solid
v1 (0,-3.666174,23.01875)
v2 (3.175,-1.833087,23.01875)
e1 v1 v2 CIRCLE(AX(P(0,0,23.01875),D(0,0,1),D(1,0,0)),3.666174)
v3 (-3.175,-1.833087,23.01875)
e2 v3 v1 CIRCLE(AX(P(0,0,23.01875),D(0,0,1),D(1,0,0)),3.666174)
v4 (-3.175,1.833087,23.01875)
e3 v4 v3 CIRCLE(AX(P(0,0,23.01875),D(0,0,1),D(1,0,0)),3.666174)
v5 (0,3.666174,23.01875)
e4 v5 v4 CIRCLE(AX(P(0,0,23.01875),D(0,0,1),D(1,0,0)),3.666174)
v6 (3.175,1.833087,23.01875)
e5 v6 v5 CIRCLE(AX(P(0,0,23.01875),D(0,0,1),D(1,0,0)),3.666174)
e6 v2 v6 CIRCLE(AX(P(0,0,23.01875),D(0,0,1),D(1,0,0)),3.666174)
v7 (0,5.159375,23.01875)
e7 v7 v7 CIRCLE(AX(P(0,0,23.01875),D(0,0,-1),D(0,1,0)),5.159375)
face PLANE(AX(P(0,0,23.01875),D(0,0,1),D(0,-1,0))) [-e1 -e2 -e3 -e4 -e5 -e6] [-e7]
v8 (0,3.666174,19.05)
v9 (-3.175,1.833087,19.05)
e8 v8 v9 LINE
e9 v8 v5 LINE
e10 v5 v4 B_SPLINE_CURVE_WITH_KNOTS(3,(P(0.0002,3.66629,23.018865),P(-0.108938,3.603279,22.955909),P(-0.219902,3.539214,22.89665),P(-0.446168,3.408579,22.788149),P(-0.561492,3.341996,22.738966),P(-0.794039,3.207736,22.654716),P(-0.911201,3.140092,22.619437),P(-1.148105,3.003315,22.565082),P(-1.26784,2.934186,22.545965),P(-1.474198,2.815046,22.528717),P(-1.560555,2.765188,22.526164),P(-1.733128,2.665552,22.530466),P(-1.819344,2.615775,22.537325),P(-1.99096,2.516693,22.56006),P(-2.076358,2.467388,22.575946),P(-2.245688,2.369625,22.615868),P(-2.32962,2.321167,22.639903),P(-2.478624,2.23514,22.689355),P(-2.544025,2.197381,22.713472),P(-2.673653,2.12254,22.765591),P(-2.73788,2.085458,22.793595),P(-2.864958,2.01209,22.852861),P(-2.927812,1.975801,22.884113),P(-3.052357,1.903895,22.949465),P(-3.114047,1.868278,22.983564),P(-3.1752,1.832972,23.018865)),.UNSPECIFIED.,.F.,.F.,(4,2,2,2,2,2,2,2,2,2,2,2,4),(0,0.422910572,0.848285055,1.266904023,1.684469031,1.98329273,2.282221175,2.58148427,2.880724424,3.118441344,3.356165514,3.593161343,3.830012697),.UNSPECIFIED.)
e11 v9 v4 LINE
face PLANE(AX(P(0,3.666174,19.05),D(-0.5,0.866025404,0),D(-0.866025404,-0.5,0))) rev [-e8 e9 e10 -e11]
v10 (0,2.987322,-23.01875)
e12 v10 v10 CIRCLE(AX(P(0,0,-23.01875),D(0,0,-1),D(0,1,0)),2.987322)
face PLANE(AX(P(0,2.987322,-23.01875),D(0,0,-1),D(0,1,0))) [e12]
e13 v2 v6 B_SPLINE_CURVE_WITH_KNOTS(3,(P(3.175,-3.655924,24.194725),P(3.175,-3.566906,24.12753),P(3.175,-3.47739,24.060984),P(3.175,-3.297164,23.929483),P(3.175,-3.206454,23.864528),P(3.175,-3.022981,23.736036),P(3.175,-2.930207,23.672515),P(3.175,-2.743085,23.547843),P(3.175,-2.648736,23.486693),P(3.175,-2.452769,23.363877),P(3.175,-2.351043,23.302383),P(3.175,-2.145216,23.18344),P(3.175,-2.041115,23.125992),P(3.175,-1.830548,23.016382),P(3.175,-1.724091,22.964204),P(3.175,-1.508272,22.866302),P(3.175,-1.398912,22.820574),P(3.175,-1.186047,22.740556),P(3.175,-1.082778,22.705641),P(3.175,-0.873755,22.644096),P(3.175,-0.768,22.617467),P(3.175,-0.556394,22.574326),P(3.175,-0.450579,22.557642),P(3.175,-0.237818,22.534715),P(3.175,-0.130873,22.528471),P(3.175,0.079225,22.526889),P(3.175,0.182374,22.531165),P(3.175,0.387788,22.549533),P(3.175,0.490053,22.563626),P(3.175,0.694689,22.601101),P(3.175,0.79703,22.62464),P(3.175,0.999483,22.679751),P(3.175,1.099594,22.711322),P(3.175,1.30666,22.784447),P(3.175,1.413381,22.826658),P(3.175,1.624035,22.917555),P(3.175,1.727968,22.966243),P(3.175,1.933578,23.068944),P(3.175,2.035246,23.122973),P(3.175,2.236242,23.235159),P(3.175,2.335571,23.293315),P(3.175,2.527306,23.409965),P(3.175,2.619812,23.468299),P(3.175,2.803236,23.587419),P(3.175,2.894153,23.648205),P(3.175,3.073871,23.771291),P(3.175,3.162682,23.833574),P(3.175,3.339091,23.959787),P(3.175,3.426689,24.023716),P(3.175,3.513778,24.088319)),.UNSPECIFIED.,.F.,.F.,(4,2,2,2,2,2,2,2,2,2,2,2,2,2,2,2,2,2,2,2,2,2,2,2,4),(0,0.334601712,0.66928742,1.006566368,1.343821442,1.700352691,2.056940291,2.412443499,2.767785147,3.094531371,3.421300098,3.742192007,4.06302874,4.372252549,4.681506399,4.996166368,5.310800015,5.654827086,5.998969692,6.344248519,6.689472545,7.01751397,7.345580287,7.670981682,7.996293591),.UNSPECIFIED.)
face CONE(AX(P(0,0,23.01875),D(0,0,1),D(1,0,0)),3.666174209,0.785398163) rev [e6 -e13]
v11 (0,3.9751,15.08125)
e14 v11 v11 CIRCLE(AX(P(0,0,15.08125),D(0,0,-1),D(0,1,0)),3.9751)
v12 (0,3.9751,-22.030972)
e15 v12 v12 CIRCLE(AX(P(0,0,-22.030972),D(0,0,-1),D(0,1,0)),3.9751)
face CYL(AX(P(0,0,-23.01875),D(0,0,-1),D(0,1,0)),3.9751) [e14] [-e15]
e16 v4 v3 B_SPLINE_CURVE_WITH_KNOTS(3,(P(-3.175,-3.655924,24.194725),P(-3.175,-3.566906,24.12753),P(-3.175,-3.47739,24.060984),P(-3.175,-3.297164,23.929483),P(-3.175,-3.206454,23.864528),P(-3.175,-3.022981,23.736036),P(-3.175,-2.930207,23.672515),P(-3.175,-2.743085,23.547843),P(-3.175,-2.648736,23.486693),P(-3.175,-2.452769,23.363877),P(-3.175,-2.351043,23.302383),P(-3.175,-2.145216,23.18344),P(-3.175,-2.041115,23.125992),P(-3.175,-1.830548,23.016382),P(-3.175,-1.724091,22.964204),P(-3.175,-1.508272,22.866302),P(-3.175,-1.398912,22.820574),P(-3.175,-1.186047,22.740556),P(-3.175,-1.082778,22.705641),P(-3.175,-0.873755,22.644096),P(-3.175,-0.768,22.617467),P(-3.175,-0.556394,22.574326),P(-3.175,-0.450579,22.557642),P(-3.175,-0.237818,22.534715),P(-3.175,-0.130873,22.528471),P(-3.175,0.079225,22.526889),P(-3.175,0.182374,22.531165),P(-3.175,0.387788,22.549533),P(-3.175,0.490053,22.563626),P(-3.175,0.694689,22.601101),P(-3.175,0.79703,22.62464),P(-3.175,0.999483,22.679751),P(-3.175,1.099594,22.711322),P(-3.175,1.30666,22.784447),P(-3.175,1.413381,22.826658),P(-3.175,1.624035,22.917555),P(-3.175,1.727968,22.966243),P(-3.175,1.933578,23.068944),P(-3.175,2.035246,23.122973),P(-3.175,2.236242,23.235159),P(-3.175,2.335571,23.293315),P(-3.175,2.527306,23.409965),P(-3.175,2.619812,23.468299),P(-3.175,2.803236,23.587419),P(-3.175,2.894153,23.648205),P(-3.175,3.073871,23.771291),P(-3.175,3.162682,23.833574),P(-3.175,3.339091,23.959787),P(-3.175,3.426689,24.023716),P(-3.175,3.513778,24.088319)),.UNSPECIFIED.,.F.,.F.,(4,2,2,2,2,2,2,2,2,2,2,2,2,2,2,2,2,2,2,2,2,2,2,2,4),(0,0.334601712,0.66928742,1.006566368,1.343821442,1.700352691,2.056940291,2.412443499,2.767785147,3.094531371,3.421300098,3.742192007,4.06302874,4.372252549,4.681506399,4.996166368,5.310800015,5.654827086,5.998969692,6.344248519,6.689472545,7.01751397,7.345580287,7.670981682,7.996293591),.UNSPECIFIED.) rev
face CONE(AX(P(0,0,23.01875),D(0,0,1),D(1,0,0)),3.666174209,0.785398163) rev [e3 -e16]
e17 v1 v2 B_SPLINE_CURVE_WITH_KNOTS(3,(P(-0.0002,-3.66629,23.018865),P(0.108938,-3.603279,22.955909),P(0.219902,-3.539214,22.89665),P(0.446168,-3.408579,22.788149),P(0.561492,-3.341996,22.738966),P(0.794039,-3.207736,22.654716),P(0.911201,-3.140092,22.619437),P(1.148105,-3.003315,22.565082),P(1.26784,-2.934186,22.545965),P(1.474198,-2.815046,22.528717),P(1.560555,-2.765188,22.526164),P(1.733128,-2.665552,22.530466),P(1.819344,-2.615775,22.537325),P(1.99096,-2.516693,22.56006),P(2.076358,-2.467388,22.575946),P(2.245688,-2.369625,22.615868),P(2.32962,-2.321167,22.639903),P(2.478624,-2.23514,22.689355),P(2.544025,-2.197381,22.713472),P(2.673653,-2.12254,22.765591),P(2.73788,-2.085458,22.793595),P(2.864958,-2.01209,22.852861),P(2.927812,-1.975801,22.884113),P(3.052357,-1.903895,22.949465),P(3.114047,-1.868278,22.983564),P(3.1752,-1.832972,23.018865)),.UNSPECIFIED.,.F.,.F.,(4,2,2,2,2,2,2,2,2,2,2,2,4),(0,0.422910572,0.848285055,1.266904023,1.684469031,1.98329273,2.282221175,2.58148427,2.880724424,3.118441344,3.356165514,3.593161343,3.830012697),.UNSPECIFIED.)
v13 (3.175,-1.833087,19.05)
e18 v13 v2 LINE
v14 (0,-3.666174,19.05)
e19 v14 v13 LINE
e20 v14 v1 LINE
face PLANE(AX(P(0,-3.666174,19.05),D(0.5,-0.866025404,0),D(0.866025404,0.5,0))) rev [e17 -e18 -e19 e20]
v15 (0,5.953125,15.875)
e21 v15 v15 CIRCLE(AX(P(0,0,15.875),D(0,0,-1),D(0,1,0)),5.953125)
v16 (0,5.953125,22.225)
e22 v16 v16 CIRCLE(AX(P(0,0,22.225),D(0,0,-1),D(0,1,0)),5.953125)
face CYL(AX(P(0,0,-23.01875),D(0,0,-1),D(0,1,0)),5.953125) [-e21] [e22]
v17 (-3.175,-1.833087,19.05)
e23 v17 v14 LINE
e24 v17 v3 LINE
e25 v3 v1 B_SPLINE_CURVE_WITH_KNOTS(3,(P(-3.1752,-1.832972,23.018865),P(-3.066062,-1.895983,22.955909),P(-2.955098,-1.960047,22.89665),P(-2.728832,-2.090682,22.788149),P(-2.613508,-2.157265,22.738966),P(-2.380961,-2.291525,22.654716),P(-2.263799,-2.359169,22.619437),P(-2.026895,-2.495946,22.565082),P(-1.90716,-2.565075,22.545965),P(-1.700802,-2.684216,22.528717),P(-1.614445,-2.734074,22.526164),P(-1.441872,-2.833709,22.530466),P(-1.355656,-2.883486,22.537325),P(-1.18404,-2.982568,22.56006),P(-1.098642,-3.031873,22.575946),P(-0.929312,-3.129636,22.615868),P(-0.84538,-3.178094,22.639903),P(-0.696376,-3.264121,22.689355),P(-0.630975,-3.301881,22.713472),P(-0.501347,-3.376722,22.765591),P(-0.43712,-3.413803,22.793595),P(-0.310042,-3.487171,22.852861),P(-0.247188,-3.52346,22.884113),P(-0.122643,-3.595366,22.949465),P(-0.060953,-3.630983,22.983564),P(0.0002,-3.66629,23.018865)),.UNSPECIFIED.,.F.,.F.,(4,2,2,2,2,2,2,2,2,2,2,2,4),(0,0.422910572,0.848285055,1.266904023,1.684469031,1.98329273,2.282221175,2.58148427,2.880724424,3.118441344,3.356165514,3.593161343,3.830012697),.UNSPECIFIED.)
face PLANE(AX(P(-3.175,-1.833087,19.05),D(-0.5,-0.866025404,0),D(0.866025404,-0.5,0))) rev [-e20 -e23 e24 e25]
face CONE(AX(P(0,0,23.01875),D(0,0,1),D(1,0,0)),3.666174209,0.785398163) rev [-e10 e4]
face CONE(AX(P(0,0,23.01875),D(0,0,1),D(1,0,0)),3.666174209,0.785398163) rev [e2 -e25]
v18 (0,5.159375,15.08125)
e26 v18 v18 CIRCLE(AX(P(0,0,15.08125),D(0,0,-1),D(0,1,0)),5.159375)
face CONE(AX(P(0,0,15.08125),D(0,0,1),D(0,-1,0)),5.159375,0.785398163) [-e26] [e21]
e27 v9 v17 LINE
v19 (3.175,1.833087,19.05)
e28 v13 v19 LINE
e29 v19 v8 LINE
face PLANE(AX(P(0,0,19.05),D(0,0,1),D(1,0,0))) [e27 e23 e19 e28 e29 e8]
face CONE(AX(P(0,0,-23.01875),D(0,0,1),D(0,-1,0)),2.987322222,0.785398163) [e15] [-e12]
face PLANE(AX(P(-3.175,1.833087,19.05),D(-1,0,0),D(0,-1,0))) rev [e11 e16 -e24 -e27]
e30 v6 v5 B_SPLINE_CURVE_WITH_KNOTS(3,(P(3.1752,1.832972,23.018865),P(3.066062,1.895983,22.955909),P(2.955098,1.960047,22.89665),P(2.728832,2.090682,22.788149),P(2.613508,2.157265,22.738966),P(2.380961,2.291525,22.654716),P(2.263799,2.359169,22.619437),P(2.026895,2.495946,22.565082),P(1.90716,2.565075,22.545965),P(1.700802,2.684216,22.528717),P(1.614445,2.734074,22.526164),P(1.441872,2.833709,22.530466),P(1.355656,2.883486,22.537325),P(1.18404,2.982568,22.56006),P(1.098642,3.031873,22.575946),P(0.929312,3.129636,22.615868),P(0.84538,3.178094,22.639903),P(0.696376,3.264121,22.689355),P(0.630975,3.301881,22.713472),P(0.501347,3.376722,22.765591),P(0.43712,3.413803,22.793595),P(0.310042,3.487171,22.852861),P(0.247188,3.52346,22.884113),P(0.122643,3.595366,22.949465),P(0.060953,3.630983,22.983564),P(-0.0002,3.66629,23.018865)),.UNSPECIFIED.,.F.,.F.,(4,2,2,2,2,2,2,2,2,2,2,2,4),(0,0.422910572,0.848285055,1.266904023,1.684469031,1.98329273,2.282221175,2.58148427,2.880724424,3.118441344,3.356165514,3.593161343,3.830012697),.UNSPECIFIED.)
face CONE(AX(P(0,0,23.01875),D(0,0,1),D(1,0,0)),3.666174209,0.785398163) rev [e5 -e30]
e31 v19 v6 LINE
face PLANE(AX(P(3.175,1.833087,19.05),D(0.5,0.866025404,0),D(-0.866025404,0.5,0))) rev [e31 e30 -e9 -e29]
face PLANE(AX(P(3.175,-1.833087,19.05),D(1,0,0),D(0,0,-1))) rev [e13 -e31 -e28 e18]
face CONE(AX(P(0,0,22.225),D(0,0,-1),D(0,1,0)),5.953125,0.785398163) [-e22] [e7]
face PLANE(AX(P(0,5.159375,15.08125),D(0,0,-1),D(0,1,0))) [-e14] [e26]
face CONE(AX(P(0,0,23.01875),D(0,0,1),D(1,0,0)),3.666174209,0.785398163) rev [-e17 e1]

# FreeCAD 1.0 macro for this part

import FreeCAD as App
import Part
import Sketcher

V = App.Vector
Q = App.Units.Quantity


def add_polygon(sketch, points):
    """Adds a closed chain of lines whose ends are joined by coincident constraints."""
    first, n = sketch.GeometryCount, len(points)
    for a, b in zip(points, points[1:] + points[:1]):
        sketch.addGeometry(Part.LineSegment(App.Vector(*a, 0), App.Vector(*b, 0)), False)
    for i in range(n):
        sketch.addConstraint(Sketcher.Constraint("Coincident", first + i, 2, first + (i + 1) % n, 1))

doc = App.newDocument("Part")
params = doc.addObject("Spreadsheet::Sheet", "Params")
for row, (alias, value) in enumerate([
    ("sketch1_height", "0.25 in"),
    ("sketch1_width", "0.203125 in"),
    ("sketch1_height2", "1.8125 in"),
    ("revolution_angle", "360 deg"),
    ("pocket1_length", "0.15625 in"),
    ("groove_angle", "360 deg"),
], start=1):
    params.set(f"A{row}", alias)
    params.set(f"B{row}", "=" + value)
    params.setAlias(f"B{row}", alias)

body = doc.addObject("PartDesign::Body", "Body")

sketch1 = body.newObject("Sketcher::SketchObject", "Sketch")
sketch1.AttachmentSupport = (doc.getObject("YZ_Plane"), [""])
sketch1.MapMode = "FlatFace"
add_polygon(sketch1, [(0, 23.01875), (0, -23.01875), (2.987322, -23.01875), (3.9751, -22.030972), (3.9751, 15.08125), (5.159375, 15.08125), (5.953125, 15.875), (5.953125, 22.225), (5.159375, 23.01875)])
sketch1.addConstraint([
    Sketcher.Constraint("Vertical", 0),
    Sketcher.Constraint("Horizontal", 1),
    Sketcher.Constraint("Vertical", 3),
    Sketcher.Constraint("Horizontal", 4),
    Sketcher.Constraint("Vertical", 6),
    Sketcher.Constraint("Horizontal", 8),
    Sketcher.Constraint("Symmetric", 0, 2, 8, 2, -1, 1),
    Sketcher.Constraint("Parallel", 2, 5),
    Sketcher.Constraint("Perpendicular", 5, 7),
    Sketcher.Constraint("Vertical", 4, 2, 7, 2),
    Sketcher.Constraint("Equal", 5, 7),
    Sketcher.Constraint("DistanceY", 6, 1, 6, 2, Q("0.25 in")),
    Sketcher.Constraint("DistanceY", 1, 2, 3, 2, Q("1.5 in")),
    Sketcher.Constraint("DistanceX", 8, 2, 8, 1, Q("0.203125 in")),
    Sketcher.Constraint("DistanceY", 0, 2, 0, 1, Q("1.8125 in")),
    Sketcher.Constraint("DistanceX", -1, 1, 2, 2, Q("0.1565 in")),
    Sketcher.Constraint("Distance", 2, 1.396929),
])
sketch1.setExpression("Constraints[20]", "Params.sketch1_height")
sketch1.setExpression("Constraints[22]", "Params.sketch1_width")
sketch1.setExpression("Constraints[23]", "Params.sketch1_height2")
revolution = body.newObject("PartDesign::Revolution", "Revolution")
revolution.Profile = sketch1
revolution.ReferenceAxis = (sketch1, ["V_Axis"])
revolution.setExpression("Angle", "Params.revolution_angle")

sketch2 = body.newObject("Sketcher::SketchObject", "Sketch001")
sketch2.AttachmentSupport = (doc.getObject("XY_Plane"), [""])
sketch2.MapMode = "FlatFace"
sketch2.AttachmentOffset = App.Placement(V(0, 0, 0.90625 * 25.4), App.Rotation())
add_polygon(sketch2, [(0, -3.666174), (3.175, -1.833087), (3.175, 1.833087), (0, 3.666174), (-3.175, 1.833087), (-3.175, -1.833087)])
sketch2.addConstraint([
    Sketcher.Constraint("Vertical", 1),
    Sketcher.Constraint("Vertical", 4),
    Sketcher.Constraint("Symmetric", 0, 2, 3, 2, -1, 1),
    Sketcher.Constraint("Symmetric", 2, 2, 5, 2, -1, 1),
    Sketcher.Constraint("PointOnObject", 2, 2, -2),
    Sketcher.Constraint("Parallel", 2, 5),
    Sketcher.Constraint("Horizontal", 1, 2, 3, 2),
    Sketcher.Constraint("Angle", 0, Q("30 deg")),
    Sketcher.Constraint("DistanceX", 3, 2, 1, 2, Q("0.25 in")),
    Sketcher.Constraint("DistanceY", 1, 1, 1, 2, 3.666174),
])
pocket1 = body.newObject("PartDesign::Pocket", "Pocket")
pocket1.Profile = sketch2
pocket1.setExpression("Length", "Params.pocket1_length")

sketch3 = body.newObject("Sketcher::SketchObject", "Sketch002")
sketch3.AttachmentSupport = (doc.getObject("YZ_Plane"), [""])
sketch3.MapMode = "FlatFace"
add_polygon(sketch3, [(0, 23.01875), (-3.666174, 23.01875), (0, 19.352576)])
sketch3.addConstraint([
    Sketcher.Constraint("Horizontal", 0),
    Sketcher.Constraint("Vertical", 2),
    Sketcher.Constraint("PointOnObject", 1, 2, -2),
    Sketcher.Constraint("Equal", 0, 2),
    Sketcher.Constraint("DistanceY", -1, 1, 0, 2, Q("0.90625 in")),
    Sketcher.Constraint("DistanceX", 0, 2, 0, 1, 3.666174),
])
groove = body.newObject("PartDesign::Groove", "Groove")
groove.Profile = sketch3
groove.ReferenceAxis = (sketch3, ["V_Axis"])
groove.setExpression("Angle", "Params.groove_angle")

doc.recompute()
